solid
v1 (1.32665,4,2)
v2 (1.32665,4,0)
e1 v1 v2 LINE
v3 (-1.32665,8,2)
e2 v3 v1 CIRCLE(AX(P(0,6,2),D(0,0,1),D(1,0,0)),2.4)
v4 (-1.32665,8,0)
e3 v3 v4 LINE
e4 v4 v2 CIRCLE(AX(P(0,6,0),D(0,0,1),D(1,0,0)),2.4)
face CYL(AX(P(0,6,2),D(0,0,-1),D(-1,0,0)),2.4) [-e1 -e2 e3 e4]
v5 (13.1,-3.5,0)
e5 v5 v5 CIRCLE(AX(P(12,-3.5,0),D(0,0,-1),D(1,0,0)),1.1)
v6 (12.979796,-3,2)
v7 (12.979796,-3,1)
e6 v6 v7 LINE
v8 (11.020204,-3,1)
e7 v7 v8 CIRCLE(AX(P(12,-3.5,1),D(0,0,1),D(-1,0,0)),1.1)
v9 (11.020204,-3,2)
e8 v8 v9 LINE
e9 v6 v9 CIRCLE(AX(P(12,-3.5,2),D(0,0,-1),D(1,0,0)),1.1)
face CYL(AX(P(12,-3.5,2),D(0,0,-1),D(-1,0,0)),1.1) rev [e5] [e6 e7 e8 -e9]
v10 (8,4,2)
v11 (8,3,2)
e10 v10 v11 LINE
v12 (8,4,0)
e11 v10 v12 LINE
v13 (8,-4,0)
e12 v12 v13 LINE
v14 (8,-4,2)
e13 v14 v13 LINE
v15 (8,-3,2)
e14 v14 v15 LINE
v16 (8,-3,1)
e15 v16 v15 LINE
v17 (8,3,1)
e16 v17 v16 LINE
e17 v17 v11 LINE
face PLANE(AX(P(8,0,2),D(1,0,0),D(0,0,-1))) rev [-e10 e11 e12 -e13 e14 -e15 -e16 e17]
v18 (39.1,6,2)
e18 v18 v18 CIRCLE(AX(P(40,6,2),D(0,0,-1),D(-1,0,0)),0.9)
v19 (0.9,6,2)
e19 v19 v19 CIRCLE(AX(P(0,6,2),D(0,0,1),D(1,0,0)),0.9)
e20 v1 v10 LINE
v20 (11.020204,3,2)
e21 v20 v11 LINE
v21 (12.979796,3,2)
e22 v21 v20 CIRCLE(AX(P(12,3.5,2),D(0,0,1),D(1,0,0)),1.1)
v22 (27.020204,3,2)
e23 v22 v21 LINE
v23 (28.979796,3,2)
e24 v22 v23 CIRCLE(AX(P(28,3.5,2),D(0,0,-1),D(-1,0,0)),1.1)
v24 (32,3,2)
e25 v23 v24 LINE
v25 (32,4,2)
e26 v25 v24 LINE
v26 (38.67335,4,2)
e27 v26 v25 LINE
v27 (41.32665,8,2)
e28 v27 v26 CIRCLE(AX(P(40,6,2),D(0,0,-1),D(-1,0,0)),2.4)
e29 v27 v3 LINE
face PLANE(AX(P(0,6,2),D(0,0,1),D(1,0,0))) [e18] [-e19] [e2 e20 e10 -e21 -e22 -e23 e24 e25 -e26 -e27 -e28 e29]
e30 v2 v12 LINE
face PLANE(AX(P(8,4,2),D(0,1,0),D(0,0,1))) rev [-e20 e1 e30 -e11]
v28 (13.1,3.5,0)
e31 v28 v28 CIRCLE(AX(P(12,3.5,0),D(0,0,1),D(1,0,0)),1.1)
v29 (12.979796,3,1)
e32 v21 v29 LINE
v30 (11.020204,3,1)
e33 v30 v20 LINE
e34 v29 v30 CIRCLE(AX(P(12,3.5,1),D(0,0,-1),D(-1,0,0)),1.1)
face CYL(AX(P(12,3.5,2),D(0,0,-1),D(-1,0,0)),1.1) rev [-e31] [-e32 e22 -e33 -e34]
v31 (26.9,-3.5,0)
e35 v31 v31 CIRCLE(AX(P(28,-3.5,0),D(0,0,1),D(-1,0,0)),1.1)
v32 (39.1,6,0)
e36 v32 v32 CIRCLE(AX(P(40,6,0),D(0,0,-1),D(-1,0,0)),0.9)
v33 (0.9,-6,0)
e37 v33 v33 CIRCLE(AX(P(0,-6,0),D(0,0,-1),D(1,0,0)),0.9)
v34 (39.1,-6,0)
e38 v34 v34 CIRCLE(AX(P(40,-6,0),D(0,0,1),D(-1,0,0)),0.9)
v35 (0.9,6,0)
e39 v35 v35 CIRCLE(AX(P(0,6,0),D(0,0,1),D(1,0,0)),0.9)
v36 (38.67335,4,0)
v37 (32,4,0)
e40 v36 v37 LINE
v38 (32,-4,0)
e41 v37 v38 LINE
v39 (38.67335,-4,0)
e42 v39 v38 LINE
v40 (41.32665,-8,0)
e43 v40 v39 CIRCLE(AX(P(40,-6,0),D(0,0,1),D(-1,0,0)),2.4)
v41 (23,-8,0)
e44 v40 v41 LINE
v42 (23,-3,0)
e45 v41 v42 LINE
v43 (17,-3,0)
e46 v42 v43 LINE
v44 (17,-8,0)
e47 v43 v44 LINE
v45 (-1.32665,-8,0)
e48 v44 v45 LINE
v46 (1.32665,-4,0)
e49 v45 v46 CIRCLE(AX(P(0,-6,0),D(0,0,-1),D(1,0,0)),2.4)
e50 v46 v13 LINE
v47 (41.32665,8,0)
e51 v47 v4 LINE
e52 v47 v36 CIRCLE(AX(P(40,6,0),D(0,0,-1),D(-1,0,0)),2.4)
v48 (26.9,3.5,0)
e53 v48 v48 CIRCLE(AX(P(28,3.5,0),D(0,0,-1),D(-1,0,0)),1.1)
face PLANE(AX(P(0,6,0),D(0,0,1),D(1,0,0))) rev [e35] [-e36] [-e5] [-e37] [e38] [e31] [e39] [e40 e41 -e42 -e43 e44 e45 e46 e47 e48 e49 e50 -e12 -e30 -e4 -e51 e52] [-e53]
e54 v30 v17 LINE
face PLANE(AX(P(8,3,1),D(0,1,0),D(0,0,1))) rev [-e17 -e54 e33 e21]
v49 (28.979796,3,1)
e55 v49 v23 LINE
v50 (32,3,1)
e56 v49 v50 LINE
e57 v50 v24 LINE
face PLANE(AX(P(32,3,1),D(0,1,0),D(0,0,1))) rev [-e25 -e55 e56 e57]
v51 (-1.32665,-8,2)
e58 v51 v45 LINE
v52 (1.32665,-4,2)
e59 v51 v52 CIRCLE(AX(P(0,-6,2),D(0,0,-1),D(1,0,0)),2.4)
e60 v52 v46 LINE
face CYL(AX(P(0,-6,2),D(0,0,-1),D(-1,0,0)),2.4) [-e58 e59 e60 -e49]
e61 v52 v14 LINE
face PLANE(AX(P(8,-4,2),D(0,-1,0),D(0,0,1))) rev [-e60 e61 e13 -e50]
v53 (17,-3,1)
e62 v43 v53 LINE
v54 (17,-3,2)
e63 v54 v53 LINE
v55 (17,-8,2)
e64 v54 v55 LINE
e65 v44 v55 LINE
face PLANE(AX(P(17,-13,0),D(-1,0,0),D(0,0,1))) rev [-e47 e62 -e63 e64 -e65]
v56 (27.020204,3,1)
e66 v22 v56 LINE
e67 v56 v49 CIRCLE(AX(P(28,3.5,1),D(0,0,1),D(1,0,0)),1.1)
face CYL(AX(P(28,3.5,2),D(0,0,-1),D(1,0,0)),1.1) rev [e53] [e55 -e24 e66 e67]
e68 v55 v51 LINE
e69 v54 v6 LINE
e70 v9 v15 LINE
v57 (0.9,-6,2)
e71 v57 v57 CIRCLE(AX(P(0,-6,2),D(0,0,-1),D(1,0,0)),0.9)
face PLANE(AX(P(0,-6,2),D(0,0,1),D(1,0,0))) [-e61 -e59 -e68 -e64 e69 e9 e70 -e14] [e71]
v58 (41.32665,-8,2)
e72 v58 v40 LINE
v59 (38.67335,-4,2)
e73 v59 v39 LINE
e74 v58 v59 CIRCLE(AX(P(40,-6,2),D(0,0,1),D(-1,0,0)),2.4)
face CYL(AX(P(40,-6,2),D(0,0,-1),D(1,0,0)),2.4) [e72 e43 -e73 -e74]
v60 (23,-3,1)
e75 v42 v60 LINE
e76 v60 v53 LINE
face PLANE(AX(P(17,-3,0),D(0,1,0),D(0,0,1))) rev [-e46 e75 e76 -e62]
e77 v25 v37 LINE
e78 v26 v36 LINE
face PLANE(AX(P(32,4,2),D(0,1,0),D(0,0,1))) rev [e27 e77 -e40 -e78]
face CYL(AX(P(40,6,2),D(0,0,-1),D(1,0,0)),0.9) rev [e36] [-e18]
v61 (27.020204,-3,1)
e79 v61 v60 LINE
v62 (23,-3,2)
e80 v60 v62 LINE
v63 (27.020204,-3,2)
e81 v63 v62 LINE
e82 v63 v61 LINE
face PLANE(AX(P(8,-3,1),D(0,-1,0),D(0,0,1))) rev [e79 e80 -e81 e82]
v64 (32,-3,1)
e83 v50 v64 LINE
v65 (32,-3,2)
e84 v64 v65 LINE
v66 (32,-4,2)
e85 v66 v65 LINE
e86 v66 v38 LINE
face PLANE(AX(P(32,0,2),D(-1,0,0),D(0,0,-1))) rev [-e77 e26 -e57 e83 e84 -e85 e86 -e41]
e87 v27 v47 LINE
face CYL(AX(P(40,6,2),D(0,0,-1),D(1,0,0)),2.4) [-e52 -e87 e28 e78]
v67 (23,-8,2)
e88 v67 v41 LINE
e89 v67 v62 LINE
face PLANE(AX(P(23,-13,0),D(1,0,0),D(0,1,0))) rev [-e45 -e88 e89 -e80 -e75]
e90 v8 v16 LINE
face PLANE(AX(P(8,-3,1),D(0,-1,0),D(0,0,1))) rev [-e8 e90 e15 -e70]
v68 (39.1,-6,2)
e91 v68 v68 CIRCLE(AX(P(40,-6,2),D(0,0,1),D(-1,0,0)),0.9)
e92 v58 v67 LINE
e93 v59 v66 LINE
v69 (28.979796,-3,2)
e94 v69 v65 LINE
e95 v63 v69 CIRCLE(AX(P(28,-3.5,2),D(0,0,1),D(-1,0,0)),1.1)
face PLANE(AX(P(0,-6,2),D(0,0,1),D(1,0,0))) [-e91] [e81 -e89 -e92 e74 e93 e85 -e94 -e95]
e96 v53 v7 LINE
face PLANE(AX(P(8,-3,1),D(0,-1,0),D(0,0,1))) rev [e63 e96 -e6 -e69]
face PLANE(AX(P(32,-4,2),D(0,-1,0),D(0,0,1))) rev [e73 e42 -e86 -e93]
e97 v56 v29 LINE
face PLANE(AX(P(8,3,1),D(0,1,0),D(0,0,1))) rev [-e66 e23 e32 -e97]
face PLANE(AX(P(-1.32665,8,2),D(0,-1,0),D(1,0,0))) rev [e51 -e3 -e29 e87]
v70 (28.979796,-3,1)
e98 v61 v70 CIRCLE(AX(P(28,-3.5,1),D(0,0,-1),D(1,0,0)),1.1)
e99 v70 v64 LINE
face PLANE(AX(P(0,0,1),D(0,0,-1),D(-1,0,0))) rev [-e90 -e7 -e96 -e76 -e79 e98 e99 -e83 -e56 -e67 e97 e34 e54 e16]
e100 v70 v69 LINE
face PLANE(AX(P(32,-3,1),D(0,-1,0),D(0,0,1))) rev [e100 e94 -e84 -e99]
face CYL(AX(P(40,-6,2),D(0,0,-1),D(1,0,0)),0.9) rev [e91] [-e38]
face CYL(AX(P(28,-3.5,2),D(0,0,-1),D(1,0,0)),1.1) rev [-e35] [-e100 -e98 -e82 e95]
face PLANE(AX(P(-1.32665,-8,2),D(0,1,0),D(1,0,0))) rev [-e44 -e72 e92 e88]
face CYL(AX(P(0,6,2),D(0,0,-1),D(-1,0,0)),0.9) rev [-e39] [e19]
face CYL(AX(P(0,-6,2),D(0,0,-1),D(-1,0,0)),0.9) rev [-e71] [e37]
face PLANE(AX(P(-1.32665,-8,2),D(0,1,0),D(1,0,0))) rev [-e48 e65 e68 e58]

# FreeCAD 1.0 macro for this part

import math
import FreeCAD as App
import Part
import Sketcher
Q = App.Units.Quantity


def add_polygon(sketch, points):
    """Adds a closed chain of lines whose ends are joined by coincident constraints."""
    first, n = sketch.GeometryCount, len(points)
    for a, b in zip(points, points[1:] + points[:1]):
        sketch.addGeometry(Part.LineSegment(App.Vector(*a, 0), App.Vector(*b, 0)), False)
    for i in range(n):
        sketch.addConstraint(Sketcher.Constraint("Coincident", first + i, 2, first + (i + 1) % n, 1))

doc = App.newDocument("Part")
params = doc.addObject("Spreadsheet::Sheet", "Params")
for row, (alias, value) in enumerate([
    ("sketch1_diameter", "2.2 mm"),
    ("sketch1_diameter2", "1.8 mm"),
    ("sketch1_radius", "2.4 mm"),
    ("sketch1_width", "12 mm"),
    ("sketch1_height", "4 mm"),
    ("pad1_length", "2 mm"),
    ("sketch2_width", "12 mm"),
    ("sketch2_height", "3 mm"),
    ("pocket1_length", "1 mm"),
    ("sketch3_width", "6 mm"),
    ("sketch3_height", "10 mm"),
], start=1):
    params.set(f"A{row}", alias)
    params.set(f"B{row}", "=" + value)
    params.setAlias(f"B{row}", alias)

body = doc.addObject("PartDesign::Body", "Body")

sketch1 = doc.addObject("Sketcher::SketchObject", "Sketch")
body.addObject(sketch1)
sketch1.AttachmentSupport = (doc.XY_Plane, [""])
sketch1.MapMode = "FlatFace"
sketch1.addGeometry([
    Part.LineSegment(App.Vector(20, 8, 0), App.Vector(-1.3, 8, 0)),
    Part.ArcOfCircle(Part.Circle(App.Vector(0, 6, 0), App.Vector(0, 0, 1), 2.4), math.radians(124), math.radians(304)),
    Part.LineSegment(App.Vector(1.3, 4, 0), App.Vector(8, 4, 0)),
    Part.LineSegment(App.Vector(8, 4, 0), App.Vector(8, 0, 0)),
    Part.LineSegment(App.Vector(8, 0, 0), App.Vector(20, 0, 0)),
    Part.LineSegment(App.Vector(20, 0, 0), App.Vector(20, 8, 0)),
    Part.Circle(App.Vector(12, 3.5, 0), App.Vector(0, 0, 1), 1.1),
    Part.Circle(App.Vector(0, 6, 0), App.Vector(0, 0, 1), 0.9),
], False)
sketch1.addConstraint([
    Sketcher.Constraint("Coincident", 0, 2, 1, 1),
    Sketcher.Constraint("Coincident", 1, 2, 2, 1),
    Sketcher.Constraint("Coincident", 2, 2, 3, 1),
    Sketcher.Constraint("Coincident", 3, 2, 4, 1),
    Sketcher.Constraint("Coincident", 4, 2, 5, 1),
    Sketcher.Constraint("Coincident", 5, 2, 0, 1),
    Sketcher.Constraint("Horizontal", 0),
    Sketcher.Constraint("Horizontal", 2),
    Sketcher.Constraint("Vertical", 3),
    Sketcher.Constraint("Horizontal", 4),
    Sketcher.Constraint("Vertical", 5),
    Sketcher.Constraint("Coincident", 7, 3, 1, 3),
    Sketcher.Constraint("PointOnObject", 1, 3, -2),
    Sketcher.Constraint("PointOnObject", 3, 2, -1),
    Sketcher.Constraint("Diameter", 6, Q("2.2 mm")),
    Sketcher.Constraint("Diameter", 7, Q("1.8 mm")),
    Sketcher.Constraint("Radius", 1, Q("2.4 mm")),
    Sketcher.Constraint("DistanceX", 4, 1, 4, 2, Q("12 mm")),
    Sketcher.Constraint("DistanceY", 3, 2, 3, 1, Q("4 mm")),
    Sketcher.Constraint("DistanceY", 5, 1, 5, 2, Q("8 mm")),
    Sketcher.Constraint("DistanceY", -1, 1, 1, 3, Q("6 mm")),
    Sketcher.Constraint("DistanceX", -1, 1, 6, 3, Q("12 mm")),
    Sketcher.Constraint("DistanceX", -1, 1, 2, 2, Q("8 mm")),
    Sketcher.Constraint("DistanceY", -1, 1, 6, 3, Q("3.5 mm")),
])
sketch1.setExpression("Constraints[14]", "Params.sketch1_diameter")
sketch1.setExpression("Constraints[15]", "Params.sketch1_diameter2")
sketch1.setExpression("Constraints[16]", "Params.sketch1_radius")
sketch1.setExpression("Constraints[17]", "Params.sketch1_width")
sketch1.setExpression("Constraints[18]", "Params.sketch1_height")
pad1 = doc.addObject("PartDesign::Pad", "Pad")
body.addObject(pad1)
pad1.Profile = sketch1
pad1.setExpression("Length", "Params.pad1_length")

sketch2 = doc.addObject("Sketcher::SketchObject", "Sketch001")
body.addObject(sketch2)
sketch2.AttachmentSupport = (doc.XY_Plane, [""])
sketch2.MapMode = "FlatFace"
sketch2.AttachmentOffset = App.Placement(App.Vector(0, 0, 2), App.Rotation())
add_polygon(sketch2, [(8, 3), (8, 0), (20, 0), (20, 3)])
sketch2.addConstraint([
    Sketcher.Constraint("Vertical", 0),
    Sketcher.Constraint("Horizontal", 1),
    Sketcher.Constraint("Vertical", 2),
    Sketcher.Constraint("Horizontal", 3),
    Sketcher.Constraint("PointOnObject", 0, 2, -1),
    Sketcher.Constraint("DistanceX", 1, 1, 1, 2, Q("12 mm")),
    Sketcher.Constraint("DistanceY", 0, 2, 0, 1, Q("3 mm")),
    Sketcher.Constraint("DistanceX", -1, 1, 0, 2, Q("8 mm")),
])
sketch2.setExpression("Constraints[9]", "Params.sketch2_width")
sketch2.setExpression("Constraints[10]", "Params.sketch2_height")
pocket1 = doc.addObject("PartDesign::Pocket", "Pocket")
body.addObject(pocket1)
pocket1.Profile = sketch2
pocket1.setExpression("Length", "Params.pocket1_length")
body2 = doc.addObject("PartDesign::Body", "Body001")
doc.recompute()

body2.BaseFeature = body
doc.recompute()

mirroring = doc.addObject("Part::Mirroring", "Mirroring")
mirroring.Source = body
mirroring.Base = App.Vector(20, 0, 2)
mirroring.Normal = App.Vector(0, 1, 0)
body3 = doc.addObject("PartDesign::Body", "Body002")
body3.BaseFeature = mirroring
boolean = doc.addObject("PartDesign::Boolean", "Boolean")
body2.addObject(boolean)
boolean.Type = "Fuse"
boolean.addObjects([body3])
doc.recompute()
body4 = doc.addObject("PartDesign::Body", "Body003")
doc.recompute()

body4.BaseFeature = body2
doc.recompute()

mirroring2 = doc.addObject("Part::Mirroring", "Mirroring001")
mirroring2.Source = body2
mirroring2.Base = App.Vector(20, 8, 2)
mirroring2.Normal = App.Vector(-1, 0, 0)
body5 = doc.addObject("PartDesign::Body", "Body004")
body5.BaseFeature = mirroring2
boolean2 = doc.addObject("PartDesign::Boolean", "Boolean001")
body4.addObject(boolean2)
boolean2.Type = "Fuse"
boolean2.addObjects([body5])
doc.recompute()

sketch3 = doc.addObject("Sketcher::SketchObject", "Sketch002")
body4.addObject(sketch3)
sketch3.AttachmentSupport = (doc.getObject("XY_Plane003"), [""])
sketch3.MapMode = "FlatFace"
sketch3.AttachmentOffset = App.Placement(App.Vector(0, 0, 2), App.Rotation())
add_polygon(sketch3, [(17, -3), (17, -13), (23, -13), (23, -3)])
sketch3.addConstraint([
    Sketcher.Constraint("Vertical", 0),
    Sketcher.Constraint("Horizontal", 1),
    Sketcher.Constraint("Vertical", 2),
    Sketcher.Constraint("Horizontal", 3),
    Sketcher.Constraint("DistanceX", 1, 1, 1, 2, Q("6 mm")),
    Sketcher.Constraint("DistanceY", 0, 2, 0, 1, Q("10 mm")),
    Sketcher.Constraint("DistanceX", -1, 1, 0, 2, Q("17 mm")),
    Sketcher.Constraint("DistanceY", 0, 2, -1, 1, Q("13 mm")),
])
sketch3.setExpression("Constraints[8]", "Params.sketch3_width")
sketch3.setExpression("Constraints[9]", "Params.sketch3_height")
pocket2 = doc.addObject("PartDesign::Pocket", "Pocket001")
body4.addObject(pocket2)
pocket2.Profile = sketch3
pocket2.Type = "ThroughAll"
mirroring.Visibility = False
mirroring2.Visibility = False

doc.recompute()
